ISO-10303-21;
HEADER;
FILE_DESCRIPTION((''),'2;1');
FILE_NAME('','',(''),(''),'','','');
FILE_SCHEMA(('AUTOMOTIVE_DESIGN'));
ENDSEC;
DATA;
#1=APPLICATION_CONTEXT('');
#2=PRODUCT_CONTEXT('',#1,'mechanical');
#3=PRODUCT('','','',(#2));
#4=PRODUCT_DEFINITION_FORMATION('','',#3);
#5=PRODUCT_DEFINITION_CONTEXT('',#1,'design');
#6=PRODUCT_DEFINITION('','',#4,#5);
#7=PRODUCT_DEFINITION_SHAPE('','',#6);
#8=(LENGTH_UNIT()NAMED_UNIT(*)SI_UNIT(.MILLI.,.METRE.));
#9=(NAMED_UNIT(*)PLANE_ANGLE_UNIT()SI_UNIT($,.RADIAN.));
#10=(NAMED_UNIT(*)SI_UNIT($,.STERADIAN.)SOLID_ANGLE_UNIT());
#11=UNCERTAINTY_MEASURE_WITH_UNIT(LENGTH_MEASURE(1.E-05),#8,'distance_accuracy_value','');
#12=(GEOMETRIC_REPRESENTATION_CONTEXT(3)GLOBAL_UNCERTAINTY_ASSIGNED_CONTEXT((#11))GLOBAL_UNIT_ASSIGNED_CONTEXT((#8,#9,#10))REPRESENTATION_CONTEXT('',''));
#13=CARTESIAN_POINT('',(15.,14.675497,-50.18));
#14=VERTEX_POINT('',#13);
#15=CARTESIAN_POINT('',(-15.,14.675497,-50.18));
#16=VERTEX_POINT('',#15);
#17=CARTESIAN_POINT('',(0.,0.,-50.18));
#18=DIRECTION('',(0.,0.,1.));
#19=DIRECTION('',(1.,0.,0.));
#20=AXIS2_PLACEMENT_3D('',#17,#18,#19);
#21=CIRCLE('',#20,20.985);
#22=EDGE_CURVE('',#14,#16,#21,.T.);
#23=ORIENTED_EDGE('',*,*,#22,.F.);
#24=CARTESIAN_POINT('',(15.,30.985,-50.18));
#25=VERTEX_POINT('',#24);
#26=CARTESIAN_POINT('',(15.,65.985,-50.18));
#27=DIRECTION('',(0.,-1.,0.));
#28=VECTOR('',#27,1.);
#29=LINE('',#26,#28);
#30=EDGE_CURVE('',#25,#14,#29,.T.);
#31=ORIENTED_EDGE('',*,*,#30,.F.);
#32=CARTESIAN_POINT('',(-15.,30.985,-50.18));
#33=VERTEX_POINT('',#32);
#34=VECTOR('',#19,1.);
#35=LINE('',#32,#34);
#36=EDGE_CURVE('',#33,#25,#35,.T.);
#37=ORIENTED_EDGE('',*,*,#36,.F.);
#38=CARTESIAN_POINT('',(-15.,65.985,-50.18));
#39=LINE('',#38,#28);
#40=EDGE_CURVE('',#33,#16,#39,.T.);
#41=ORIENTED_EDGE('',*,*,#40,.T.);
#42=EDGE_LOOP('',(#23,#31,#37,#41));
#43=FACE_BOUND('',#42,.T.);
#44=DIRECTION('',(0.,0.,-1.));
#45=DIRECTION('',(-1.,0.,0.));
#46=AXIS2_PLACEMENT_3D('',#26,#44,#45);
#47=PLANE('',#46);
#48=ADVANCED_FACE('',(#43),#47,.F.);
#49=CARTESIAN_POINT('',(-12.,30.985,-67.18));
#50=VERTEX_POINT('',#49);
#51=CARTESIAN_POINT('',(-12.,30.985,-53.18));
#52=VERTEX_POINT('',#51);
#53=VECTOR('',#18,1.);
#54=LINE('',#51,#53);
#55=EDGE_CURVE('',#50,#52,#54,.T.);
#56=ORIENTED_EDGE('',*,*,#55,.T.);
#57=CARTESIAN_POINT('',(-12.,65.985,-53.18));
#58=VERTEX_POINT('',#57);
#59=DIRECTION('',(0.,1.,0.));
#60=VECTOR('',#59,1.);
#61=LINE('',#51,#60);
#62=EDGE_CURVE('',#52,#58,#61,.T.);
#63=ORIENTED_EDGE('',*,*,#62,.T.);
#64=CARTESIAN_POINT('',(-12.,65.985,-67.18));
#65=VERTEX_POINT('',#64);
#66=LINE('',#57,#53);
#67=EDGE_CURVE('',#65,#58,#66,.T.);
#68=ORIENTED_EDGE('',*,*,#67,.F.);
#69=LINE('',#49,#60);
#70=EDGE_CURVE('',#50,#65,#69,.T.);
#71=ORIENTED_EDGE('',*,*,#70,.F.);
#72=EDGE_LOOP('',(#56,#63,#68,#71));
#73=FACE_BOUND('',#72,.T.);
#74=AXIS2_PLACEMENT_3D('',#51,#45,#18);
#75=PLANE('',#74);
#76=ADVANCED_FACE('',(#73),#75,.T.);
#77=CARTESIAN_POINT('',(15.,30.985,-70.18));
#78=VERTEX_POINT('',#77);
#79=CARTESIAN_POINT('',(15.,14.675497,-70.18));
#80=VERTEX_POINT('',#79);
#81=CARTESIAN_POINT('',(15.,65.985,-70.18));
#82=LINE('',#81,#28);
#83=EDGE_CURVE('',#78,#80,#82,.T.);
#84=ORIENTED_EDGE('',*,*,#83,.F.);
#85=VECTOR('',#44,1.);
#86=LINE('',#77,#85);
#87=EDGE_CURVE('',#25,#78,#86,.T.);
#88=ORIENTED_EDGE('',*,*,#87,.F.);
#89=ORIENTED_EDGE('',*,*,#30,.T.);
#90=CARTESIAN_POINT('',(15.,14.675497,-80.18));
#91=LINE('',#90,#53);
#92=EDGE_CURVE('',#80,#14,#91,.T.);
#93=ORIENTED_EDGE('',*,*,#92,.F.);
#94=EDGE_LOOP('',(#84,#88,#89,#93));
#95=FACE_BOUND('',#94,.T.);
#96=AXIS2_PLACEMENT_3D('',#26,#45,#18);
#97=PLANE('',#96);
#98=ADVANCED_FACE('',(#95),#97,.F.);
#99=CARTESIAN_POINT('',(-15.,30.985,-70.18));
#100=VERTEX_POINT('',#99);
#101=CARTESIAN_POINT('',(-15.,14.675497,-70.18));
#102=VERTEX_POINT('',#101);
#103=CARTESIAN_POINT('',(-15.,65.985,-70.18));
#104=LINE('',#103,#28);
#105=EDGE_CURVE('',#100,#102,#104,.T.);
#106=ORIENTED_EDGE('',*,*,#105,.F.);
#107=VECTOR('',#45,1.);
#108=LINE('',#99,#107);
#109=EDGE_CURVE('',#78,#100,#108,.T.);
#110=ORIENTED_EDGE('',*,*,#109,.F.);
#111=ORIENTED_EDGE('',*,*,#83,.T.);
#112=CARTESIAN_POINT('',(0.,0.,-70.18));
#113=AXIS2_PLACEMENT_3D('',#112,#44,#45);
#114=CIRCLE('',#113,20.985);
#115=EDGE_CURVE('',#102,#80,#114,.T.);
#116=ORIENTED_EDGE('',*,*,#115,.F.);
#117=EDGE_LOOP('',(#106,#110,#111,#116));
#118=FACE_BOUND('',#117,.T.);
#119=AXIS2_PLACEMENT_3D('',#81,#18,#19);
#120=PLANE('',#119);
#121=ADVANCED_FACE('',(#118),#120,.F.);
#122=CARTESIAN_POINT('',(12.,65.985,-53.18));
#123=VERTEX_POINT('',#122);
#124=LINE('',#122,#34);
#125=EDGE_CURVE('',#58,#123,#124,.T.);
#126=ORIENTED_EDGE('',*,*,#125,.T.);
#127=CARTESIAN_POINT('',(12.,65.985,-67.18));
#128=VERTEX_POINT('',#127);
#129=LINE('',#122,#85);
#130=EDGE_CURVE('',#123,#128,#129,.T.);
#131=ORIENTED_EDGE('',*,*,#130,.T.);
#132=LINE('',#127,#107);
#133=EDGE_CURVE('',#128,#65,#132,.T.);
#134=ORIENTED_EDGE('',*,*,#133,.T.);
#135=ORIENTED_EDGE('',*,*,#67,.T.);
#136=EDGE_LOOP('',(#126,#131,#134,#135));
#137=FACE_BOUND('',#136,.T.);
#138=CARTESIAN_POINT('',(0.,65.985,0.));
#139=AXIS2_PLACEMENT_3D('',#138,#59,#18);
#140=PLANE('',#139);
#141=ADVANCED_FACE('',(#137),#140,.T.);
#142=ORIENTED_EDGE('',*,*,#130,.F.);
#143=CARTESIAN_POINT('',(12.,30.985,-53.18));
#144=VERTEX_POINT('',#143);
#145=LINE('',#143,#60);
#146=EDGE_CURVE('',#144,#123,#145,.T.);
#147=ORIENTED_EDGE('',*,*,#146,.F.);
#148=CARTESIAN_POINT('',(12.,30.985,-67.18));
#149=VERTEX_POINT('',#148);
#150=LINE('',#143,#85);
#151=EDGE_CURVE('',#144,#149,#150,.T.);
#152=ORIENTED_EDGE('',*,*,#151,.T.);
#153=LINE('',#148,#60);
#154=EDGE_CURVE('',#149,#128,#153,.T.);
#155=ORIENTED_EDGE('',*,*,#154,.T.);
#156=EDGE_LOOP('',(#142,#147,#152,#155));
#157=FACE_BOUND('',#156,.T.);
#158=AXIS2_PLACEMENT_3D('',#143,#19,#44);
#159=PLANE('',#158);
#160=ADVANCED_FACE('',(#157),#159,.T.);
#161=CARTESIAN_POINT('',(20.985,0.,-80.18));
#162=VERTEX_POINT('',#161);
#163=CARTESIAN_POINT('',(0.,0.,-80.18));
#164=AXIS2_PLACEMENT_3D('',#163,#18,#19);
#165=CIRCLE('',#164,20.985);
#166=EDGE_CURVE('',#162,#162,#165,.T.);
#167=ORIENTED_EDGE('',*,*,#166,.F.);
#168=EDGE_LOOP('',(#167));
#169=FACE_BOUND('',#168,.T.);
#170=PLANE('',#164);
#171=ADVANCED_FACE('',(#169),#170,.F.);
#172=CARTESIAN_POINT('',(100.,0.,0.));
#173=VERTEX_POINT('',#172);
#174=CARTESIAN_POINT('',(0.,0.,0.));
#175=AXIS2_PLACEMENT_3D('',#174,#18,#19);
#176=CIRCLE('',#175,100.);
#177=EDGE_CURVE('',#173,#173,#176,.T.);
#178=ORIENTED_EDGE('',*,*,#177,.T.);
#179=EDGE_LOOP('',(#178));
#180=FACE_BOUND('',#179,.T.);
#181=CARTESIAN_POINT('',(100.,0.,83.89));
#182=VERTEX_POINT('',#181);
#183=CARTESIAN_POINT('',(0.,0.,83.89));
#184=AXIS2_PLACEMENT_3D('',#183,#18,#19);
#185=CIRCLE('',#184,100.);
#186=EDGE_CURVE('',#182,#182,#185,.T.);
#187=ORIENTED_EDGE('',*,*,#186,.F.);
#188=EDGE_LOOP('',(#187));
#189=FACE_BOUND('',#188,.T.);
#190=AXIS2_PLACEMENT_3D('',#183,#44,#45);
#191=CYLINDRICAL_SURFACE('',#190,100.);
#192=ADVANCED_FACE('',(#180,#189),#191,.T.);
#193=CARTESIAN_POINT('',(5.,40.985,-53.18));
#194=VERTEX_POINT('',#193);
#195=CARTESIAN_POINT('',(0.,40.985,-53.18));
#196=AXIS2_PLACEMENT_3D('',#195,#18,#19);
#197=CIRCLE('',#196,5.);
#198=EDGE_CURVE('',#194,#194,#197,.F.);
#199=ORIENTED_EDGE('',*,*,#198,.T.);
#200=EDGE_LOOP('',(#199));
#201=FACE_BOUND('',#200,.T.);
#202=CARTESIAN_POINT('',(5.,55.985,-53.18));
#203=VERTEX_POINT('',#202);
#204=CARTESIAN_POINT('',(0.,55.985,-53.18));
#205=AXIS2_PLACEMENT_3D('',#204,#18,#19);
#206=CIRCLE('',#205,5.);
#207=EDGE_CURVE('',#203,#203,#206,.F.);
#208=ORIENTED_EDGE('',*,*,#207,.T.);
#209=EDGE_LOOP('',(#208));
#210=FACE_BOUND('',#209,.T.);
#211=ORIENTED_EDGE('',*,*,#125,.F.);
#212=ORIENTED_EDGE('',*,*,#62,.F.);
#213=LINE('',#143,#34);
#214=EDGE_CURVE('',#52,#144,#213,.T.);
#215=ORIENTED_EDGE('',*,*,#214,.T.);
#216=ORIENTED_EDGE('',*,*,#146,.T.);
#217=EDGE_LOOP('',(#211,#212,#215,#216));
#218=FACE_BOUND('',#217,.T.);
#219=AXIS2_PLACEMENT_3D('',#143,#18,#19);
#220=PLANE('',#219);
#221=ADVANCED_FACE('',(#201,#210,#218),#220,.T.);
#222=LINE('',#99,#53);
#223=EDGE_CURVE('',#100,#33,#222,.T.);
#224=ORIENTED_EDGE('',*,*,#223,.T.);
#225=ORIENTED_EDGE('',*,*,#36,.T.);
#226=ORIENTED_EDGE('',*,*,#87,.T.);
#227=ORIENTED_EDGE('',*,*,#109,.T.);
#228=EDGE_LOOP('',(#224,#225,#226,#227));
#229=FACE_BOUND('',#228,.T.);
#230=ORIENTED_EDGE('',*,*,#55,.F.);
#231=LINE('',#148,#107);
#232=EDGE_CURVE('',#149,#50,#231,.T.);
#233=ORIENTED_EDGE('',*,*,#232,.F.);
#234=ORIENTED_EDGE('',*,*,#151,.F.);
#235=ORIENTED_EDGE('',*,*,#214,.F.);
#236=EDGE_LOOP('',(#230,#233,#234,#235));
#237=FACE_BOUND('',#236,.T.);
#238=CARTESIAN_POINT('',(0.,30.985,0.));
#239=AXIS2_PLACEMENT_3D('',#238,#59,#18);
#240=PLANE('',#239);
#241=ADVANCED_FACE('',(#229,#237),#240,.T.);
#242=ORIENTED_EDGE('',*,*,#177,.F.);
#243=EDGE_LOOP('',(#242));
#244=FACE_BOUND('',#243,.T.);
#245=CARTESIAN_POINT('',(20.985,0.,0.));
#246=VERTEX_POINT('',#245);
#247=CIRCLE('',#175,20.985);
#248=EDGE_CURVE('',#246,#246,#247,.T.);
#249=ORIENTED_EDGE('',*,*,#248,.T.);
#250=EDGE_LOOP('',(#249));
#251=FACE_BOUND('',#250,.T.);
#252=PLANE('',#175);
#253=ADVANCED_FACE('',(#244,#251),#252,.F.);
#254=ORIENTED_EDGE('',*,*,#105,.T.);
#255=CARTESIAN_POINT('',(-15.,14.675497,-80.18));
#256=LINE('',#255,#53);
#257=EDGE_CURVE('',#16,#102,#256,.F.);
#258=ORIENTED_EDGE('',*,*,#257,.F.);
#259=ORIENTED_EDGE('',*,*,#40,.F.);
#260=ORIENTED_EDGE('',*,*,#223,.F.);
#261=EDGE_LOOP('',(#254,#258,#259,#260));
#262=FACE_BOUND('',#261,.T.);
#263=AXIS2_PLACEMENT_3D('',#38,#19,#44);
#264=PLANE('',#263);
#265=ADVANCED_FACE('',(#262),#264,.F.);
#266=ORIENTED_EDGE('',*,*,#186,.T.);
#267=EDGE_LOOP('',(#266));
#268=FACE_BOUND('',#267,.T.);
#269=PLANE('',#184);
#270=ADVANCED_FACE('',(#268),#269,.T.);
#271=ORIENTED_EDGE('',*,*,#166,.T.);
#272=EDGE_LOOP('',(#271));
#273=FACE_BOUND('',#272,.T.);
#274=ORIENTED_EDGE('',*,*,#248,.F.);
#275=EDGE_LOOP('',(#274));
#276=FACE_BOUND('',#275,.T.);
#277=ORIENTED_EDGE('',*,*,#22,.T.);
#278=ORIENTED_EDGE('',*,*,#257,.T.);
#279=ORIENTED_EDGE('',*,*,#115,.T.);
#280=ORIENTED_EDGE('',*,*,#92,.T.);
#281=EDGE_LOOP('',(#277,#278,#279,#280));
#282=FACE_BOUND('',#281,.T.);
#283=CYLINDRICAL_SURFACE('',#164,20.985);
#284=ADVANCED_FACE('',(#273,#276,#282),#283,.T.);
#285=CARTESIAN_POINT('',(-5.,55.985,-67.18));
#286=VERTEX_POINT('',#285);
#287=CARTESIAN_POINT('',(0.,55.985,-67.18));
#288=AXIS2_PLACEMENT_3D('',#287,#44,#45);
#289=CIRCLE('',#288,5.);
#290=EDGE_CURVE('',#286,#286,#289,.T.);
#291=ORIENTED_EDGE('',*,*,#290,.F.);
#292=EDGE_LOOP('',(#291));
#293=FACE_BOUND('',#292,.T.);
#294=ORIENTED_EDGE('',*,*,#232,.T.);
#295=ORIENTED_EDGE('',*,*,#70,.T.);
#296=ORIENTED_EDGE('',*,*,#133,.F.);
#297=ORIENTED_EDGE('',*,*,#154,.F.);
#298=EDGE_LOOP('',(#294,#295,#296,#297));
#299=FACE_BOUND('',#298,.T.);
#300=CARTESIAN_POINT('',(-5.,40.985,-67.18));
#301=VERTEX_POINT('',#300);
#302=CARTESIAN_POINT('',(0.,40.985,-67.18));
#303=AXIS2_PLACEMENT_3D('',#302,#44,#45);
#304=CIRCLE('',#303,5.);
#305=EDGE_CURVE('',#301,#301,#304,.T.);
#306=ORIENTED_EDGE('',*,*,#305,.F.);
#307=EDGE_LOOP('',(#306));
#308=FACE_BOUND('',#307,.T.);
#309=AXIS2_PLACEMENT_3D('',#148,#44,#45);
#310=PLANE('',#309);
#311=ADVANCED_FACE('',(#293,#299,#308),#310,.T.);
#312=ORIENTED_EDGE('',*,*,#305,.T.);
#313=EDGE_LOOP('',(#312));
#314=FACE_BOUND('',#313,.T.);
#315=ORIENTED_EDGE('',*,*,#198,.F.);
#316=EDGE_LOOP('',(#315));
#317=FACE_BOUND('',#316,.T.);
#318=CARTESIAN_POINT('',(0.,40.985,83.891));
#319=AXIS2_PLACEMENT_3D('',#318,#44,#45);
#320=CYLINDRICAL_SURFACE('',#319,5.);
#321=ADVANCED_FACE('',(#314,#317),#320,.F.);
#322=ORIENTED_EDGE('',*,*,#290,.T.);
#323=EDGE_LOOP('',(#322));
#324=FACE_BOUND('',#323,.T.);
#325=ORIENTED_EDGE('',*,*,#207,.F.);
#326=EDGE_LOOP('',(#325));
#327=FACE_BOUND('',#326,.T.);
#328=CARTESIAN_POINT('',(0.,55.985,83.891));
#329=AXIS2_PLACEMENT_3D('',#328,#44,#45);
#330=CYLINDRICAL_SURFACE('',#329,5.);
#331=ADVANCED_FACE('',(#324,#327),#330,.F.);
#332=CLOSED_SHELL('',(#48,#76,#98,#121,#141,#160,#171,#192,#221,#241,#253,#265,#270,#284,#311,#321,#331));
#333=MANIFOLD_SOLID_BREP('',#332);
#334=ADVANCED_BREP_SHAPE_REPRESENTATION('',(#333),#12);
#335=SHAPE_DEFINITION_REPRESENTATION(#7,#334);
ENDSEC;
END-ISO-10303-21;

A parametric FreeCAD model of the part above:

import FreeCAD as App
import Part
import Sketcher

doc = App.newDocument("Part")
params = doc.addObject("Spreadsheet::Sheet", "Params")
for row, (alias, value) in enumerate([
    ("sketch1_diameter", "200 mm"),
    ("pad1_length", "83.89 mm"),
    ("sketch2_diameter", "41.97 mm"),
    ("pad2_length", "80.18 mm"),
    ("sketch3_width", "30 mm"),
    ("sketch3_height", "20 mm"),
    ("pad3_length", "51.309503 mm"),
    ("sketch4_width", "30 mm"),
    ("sketch4_width2", "24 mm"),
    ("sketch4_height", "20 mm"),
    ("sketch4_height2", "14 mm"),
    ("pocket1_length", "35 mm"),
    ("sketch5_diameter", "10 mm"),
    ("sketch6_diameter", "10 mm"),
], start=1):
    params.set(f"A{row}", alias)
    params.set(f"B{row}", "=" + value)
    params.setAlias(f"B{row}", alias)

body = doc.addObject("PartDesign::Body", "Body")

sketch1 = body.newObject("Sketcher::SketchObject", "Sketch")
sketch1.AttachmentSupport = (doc.getObject("XY_Plane"), [""])
sketch1.MapMode = "FlatFace"
sketch1.addGeometry(Part.Circle(App.Vector(0, 0, 0), App.Vector(0, 0, 1), 100), False)
sketch1.addConstraint(Sketcher.Constraint("Coincident", 0, 3, -1, 1))
sketch1.addConstraint(Sketcher.Constraint("Diameter", 0, 200.0))
sketch1.setExpression("Constraints[1]", "Params.sketch1_diameter")
pad1 = body.newObject("PartDesign::Pad", "Pad")
pad1.Profile = sketch1
pad1.setExpression("Length", "Params.pad1_length")

sketch2 = body.newObject("Sketcher::SketchObject", "Sketch001")
sketch2.AttachmentSupport = (doc.getObject("XY_Plane"), [""])
sketch2.MapMode = "FlatFace"
sketch2.addGeometry(Part.Circle(App.Vector(0, 0, 0), App.Vector(0, 0, 1), 21), False)
sketch2.addConstraint(Sketcher.Constraint("Coincident", 0, 3, -1, 1))
sketch2.addConstraint(Sketcher.Constraint("Diameter", 0, 41.97))
sketch2.setExpression("Constraints[1]", "Params.sketch2_diameter")
pad2 = body.newObject("PartDesign::Pad", "Pad001")
pad2.Profile = sketch2
pad2.setExpression("Length", "Params.pad2_length")
pad2.Reversed = True

sketch3 = body.newObject("Sketcher::SketchObject", "Sketch002")
sketch3.AttachmentSupport = (doc.getObject("XZ_Plane"), [""])
sketch3.MapMode = "FlatFace"
sketch3.AttachmentOffset = App.Placement(App.Vector(0, 0, -14.675497), App.Rotation())
sketch3.addGeometry(Part.LineSegment(App.Vector(-15, -70, 0), App.Vector(-15, -50, 0)), False)
sketch3.addGeometry(Part.LineSegment(App.Vector(-15, -50, 0), App.Vector(15, -50, 0)), False)
sketch3.addGeometry(Part.LineSegment(App.Vector(15, -50, 0), App.Vector(15, -70, 0)), False)
sketch3.addGeometry(Part.LineSegment(App.Vector(15, -70, 0), App.Vector(-15, -70, 0)), False)
sketch3.addConstraint(Sketcher.Constraint("Coincident", 0, 2, 1, 1))
sketch3.addConstraint(Sketcher.Constraint("Coincident", 1, 2, 2, 1))
sketch3.addConstraint(Sketcher.Constraint("Coincident", 2, 2, 3, 1))
sketch3.addConstraint(Sketcher.Constraint("Coincident", 3, 2, 0, 1))
sketch3.addConstraint(Sketcher.Constraint("Vertical", 0))
sketch3.addConstraint(Sketcher.Constraint("Horizontal", 1))
sketch3.addConstraint(Sketcher.Constraint("Vertical", 2))
sketch3.addConstraint(Sketcher.Constraint("Horizontal", 3))
sketch3.addConstraint(Sketcher.Constraint("DistanceX", 1, 1, 1, 2, 30.0))
sketch3.addConstraint(Sketcher.Constraint("DistanceY", 0, 1, 0, 2, 20.0))
sketch3.addConstraint(Sketcher.Constraint("DistanceX", 0, 2, -1, 1, 15.0))
sketch3.addConstraint(Sketcher.Constraint("DistanceY", 0, 2, -1, 1, 50.18))
sketch3.setExpression("Constraints[8]", "Params.sketch3_width")
sketch3.setExpression("Constraints[9]", "Params.sketch3_height")
pad3 = body.newObject("PartDesign::Pad", "Pad002")
pad3.Profile = sketch3
pad3.setExpression("Length", "Params.pad3_length")
pad3.Reversed = True

sketch4 = body.newObject("Sketcher::SketchObject", "Sketch003")
sketch4.AttachmentSupport = (doc.getObject("XZ_Plane"), [""])
sketch4.MapMode = "FlatFace"
sketch4.AttachmentOffset = App.Placement(App.Vector(0, 0, -65.985), App.Rotation())
sketch4.addGeometry(Part.LineSegment(App.Vector(-15, -70, 0), App.Vector(-15, -50, 0)), False)
sketch4.addGeometry(Part.LineSegment(App.Vector(-15, -50, 0), App.Vector(15, -50, 0)), False)
sketch4.addGeometry(Part.LineSegment(App.Vector(15, -50, 0), App.Vector(15, -70, 0)), False)
sketch4.addGeometry(Part.LineSegment(App.Vector(15, -70, 0), App.Vector(-15, -70, 0)), False)
sketch4.addGeometry(Part.LineSegment(App.Vector(12, -53, 0), App.Vector(-12, -53, 0)), False)
sketch4.addGeometry(Part.LineSegment(App.Vector(-12, -53, 0), App.Vector(-12, -67, 0)), False)
sketch4.addGeometry(Part.LineSegment(App.Vector(-12, -67, 0), App.Vector(12, -67, 0)), False)
sketch4.addGeometry(Part.LineSegment(App.Vector(12, -67, 0), App.Vector(12, -53, 0)), False)
sketch4.addConstraint(Sketcher.Constraint("Coincident", 0, 2, 1, 1))
sketch4.addConstraint(Sketcher.Constraint("Coincident", 1, 2, 2, 1))
sketch4.addConstraint(Sketcher.Constraint("Coincident", 2, 2, 3, 1))
sketch4.addConstraint(Sketcher.Constraint("Coincident", 3, 2, 0, 1))
sketch4.addConstraint(Sketcher.Constraint("Coincident", 4, 2, 5, 1))
sketch4.addConstraint(Sketcher.Constraint("Coincident", 5, 2, 6, 1))
sketch4.addConstraint(Sketcher.Constraint("Coincident", 6, 2, 7, 1))
sketch4.addConstraint(Sketcher.Constraint("Coincident", 7, 2, 4, 1))
sketch4.addConstraint(Sketcher.Constraint("Vertical", 0))
sketch4.addConstraint(Sketcher.Constraint("Horizontal", 1))
sketch4.addConstraint(Sketcher.Constraint("Vertical", 2))
sketch4.addConstraint(Sketcher.Constraint("Horizontal", 3))
sketch4.addConstraint(Sketcher.Constraint("Horizontal", 4))
sketch4.addConstraint(Sketcher.Constraint("Vertical", 5))
sketch4.addConstraint(Sketcher.Constraint("Horizontal", 6))
sketch4.addConstraint(Sketcher.Constraint("Vertical", 7))
sketch4.addConstraint(Sketcher.Constraint("DistanceX", 1, 1, 1, 2, 30.0))
sketch4.addConstraint(Sketcher.Constraint("DistanceX", 4, 2, 4, 1, 24.0))
sketch4.addConstraint(Sketcher.Constraint("DistanceY", 0, 1, 0, 2, 20.0))
sketch4.addConstraint(Sketcher.Constraint("DistanceY", 5, 2, 5, 1, 14.0))
sketch4.addConstraint(Sketcher.Constraint("DistanceX", 0, 2, -1, 1, 15.0))
sketch4.addConstraint(Sketcher.Constraint("DistanceX", 4, 2, -1, 1, 12.0))
sketch4.addConstraint(Sketcher.Constraint("DistanceY", 4, 2, 0, 2, 3.0))
sketch4.addConstraint(Sketcher.Constraint("DistanceY", 0, 2, -1, 1, 50.18))
sketch4.setExpression("Constraints[16]", "Params.sketch4_width")
sketch4.setExpression("Constraints[17]", "Params.sketch4_width2")
sketch4.setExpression("Constraints[18]", "Params.sketch4_height")
sketch4.setExpression("Constraints[19]", "Params.sketch4_height2")
pocket1 = body.newObject("PartDesign::Pocket", "Pocket")
pocket1.Profile = sketch4
pocket1.setExpression("Length", "Params.pocket1_length")
pocket1.Reversed = True

sketch5 = body.newObject("Sketcher::SketchObject", "Sketch004")
sketch5.AttachmentSupport = (doc.getObject("XY_Plane"), [""])
sketch5.MapMode = "FlatFace"
sketch5.AttachmentOffset = App.Placement(App.Vector(0, 0, -67.18), App.Rotation())
sketch5.addGeometry(Part.Circle(App.Vector(0, 41, 0), App.Vector(0, 0, 1), 5), False)
sketch5.addConstraint(Sketcher.Constraint("PointOnObject", 0, 3, -2))
sketch5.addConstraint(Sketcher.Constraint("Diameter", 0, 10.0))
sketch5.addConstraint(Sketcher.Constraint("DistanceY", -1, 1, 0, 3, 40.985))
sketch5.setExpression("Constraints[1]", "Params.sketch5_diameter")
pocket2 = body.newObject("PartDesign::Pocket", "Pocket001")
pocket2.Profile = sketch5
pocket2.Type = "UpToFirst"
pocket2.Reversed = True

sketch6 = body.newObject("Sketcher::SketchObject", "Sketch005")
sketch6.AttachmentSupport = (doc.getObject("XY_Plane"), [""])
sketch6.MapMode = "FlatFace"
sketch6.AttachmentOffset = App.Placement(App.Vector(0, 0, -67.18), App.Rotation())
sketch6.addGeometry(Part.Circle(App.Vector(0, 56, 0), App.Vector(0, 0, 1), 5), False)
sketch6.addConstraint(Sketcher.Constraint("PointOnObject", 0, 3, -2))
sketch6.addConstraint(Sketcher.Constraint("Diameter", 0, 10.0))
sketch6.addConstraint(Sketcher.Constraint("DistanceY", -1, 1, 0, 3, 55.985))
sketch6.setExpression("Constraints[1]", "Params.sketch6_diameter")
pocket3 = body.newObject("PartDesign::Pocket", "Pocket002")
pocket3.Profile = sketch6
pocket3.Type = "UpToFirst"
pocket3.Reversed = True

doc.recompute()
